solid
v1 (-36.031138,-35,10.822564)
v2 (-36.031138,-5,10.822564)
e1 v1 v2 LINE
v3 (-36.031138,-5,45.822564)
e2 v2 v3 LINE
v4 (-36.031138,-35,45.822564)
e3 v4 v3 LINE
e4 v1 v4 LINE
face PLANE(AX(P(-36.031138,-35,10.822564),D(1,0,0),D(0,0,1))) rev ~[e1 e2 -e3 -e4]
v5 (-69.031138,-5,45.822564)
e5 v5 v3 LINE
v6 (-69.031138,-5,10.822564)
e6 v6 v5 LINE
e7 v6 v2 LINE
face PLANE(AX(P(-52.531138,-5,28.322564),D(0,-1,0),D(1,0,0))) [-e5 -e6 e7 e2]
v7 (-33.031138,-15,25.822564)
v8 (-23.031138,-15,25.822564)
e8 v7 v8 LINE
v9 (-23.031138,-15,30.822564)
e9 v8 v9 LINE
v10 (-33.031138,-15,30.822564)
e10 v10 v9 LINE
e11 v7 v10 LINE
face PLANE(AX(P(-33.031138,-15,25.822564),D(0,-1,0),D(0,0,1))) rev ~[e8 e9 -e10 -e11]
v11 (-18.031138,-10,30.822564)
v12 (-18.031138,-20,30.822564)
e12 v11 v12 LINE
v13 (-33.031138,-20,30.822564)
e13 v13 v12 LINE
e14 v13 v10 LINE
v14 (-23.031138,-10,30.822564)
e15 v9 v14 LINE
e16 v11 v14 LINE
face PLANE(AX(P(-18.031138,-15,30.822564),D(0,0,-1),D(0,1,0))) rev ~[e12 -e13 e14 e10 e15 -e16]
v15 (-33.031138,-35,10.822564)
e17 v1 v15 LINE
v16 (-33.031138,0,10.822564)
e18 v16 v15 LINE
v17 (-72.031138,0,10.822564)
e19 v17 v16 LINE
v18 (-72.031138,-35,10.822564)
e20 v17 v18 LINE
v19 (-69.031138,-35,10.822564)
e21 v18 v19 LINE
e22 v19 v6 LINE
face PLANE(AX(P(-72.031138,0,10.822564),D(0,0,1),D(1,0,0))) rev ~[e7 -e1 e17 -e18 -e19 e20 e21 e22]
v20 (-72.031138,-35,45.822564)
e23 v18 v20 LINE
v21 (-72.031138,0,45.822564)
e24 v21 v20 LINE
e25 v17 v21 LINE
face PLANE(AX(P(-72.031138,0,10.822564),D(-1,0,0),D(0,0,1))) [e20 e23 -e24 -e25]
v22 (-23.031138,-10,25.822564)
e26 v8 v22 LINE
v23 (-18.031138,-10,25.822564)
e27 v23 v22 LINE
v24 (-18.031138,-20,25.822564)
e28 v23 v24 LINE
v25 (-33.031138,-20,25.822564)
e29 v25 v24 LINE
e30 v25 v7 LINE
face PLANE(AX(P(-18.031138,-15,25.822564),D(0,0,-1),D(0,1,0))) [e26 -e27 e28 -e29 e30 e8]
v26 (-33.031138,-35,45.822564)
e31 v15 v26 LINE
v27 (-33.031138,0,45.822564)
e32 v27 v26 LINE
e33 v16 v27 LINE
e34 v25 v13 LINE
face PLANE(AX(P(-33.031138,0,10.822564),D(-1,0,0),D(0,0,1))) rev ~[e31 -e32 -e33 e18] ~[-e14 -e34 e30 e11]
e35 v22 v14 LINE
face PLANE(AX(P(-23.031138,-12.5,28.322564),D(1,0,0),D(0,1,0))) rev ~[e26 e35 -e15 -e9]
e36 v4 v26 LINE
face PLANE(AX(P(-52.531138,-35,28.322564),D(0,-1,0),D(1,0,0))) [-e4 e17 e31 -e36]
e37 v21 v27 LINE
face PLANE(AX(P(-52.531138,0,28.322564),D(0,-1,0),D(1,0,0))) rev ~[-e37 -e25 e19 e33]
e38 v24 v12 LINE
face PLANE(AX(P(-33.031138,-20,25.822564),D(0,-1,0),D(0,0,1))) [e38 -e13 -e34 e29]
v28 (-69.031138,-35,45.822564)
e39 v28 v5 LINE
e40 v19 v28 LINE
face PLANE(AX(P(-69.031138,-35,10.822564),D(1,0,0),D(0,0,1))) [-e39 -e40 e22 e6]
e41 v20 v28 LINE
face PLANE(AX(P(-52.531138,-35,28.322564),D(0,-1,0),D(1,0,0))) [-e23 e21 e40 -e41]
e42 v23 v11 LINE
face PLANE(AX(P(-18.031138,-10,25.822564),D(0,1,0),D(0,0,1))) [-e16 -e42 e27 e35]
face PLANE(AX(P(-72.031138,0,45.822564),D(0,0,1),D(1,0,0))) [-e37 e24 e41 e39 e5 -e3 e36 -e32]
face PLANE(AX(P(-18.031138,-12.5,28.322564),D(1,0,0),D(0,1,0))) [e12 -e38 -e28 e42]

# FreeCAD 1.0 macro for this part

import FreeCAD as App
import Part
import Sketcher

V = App.Vector
Q = App.Units.Quantity

doc = App.newDocument("Part")
params = doc.addObject("Spreadsheet::Sheet", "Params")
for row, (alias, value) in enumerate([
    ("sketch1_width", "39 mm"),
    ("sketch1_height", "35 mm"),
    ("pad1_length", "35 mm"),
    ("sketch2_width", "33 mm"),
    ("sketch2_height", "35 mm"),
    ("pocket1_length", "30 mm"),
    ("sketch3_width", "5 mm"),
    ("pad2_length", "15 mm"),
    ("sketch4_width", "5 mm"),
    ("pad3_length", "5 mm"),
], start=1):
    params.set(f"A{row}", alias)
    params.set(f"B{row}", "=" + value)
    params.setAlias(f"B{row}", alias)

body = doc.addObject("PartDesign::Body", "Body")

# Sketch on XZ plane
sketch1 = doc.addObject("Sketcher::SketchObject", "Sketch")
body.addObject(sketch1)
sketch1.AttachmentSupport = (doc.XZ_Plane, [""])
sketch1.MapMode = "FlatFace"
sketch1.addGeometry(Part.LineSegment(V(-72.031138, 45.822564, 0), V(-72.031138, 10.822564, 0)), False)
sketch1.addGeometry(Part.LineSegment(V(-72.031138, 10.822564, 0), V(-33.031138, 10.822564, 0)), False)
sketch1.addGeometry(Part.LineSegment(V(-33.031138, 10.822564, 0), V(-33.031138, 45.822564, 0)), False)
sketch1.addGeometry(Part.LineSegment(V(-33.031138, 45.822564, 0), V(-72.031138, 45.822564, 0)), False)
sketch1.addConstraint(Sketcher.Constraint("Coincident", 0, 2, 1, 1))
sketch1.addConstraint(Sketcher.Constraint("Coincident", 1, 2, 2, 1))
sketch1.addConstraint(Sketcher.Constraint("Coincident", 2, 2, 3, 1))
sketch1.addConstraint(Sketcher.Constraint("Coincident", 3, 2, 0, 1))
sketch1.addConstraint(Sketcher.Constraint("Vertical", 0))
sketch1.addConstraint(Sketcher.Constraint("Horizontal", 1))
sketch1.addConstraint(Sketcher.Constraint("Vertical", 2))
sketch1.addConstraint(Sketcher.Constraint("Horizontal", 3))
sketch1.addConstraint(Sketcher.Constraint("DistanceX", 1, 1, 1, 2, Q("39 mm")))
sketch1.addConstraint(Sketcher.Constraint("DistanceY", 0, 2, 0, 1, Q("35 mm")))
sketch1.addConstraint(Sketcher.Constraint("DistanceX", 0, 2, -1, 1, Q("72.031138 mm")))
sketch1.addConstraint(Sketcher.Constraint("DistanceY", -1, 1, 0, 2, Q("10.822564 mm")))
sketch1.setExpression("Constraints[8]", "Params.sketch1_width")
sketch1.setExpression("Constraints[9]", "Params.sketch1_height")
pad1 = doc.addObject("PartDesign::Pad", "Pad")
body.addObject(pad1)
pad1.Profile = sketch1
pad1.setExpression("Length", "Params.pad1_length")

# Sketch on XZ plane
sketch2 = doc.addObject("Sketcher::SketchObject", "Sketch001")
body.addObject(sketch2)
sketch2.AttachmentSupport = (doc.XZ_Plane, [""])
sketch2.MapMode = "FlatFace"
sketch2.AttachmentOffset = App.Placement(V(0, 0, 35), App.Rotation())
sketch2.addGeometry(Part.LineSegment(V(-69.031138, 45.822564, 0), V(-69.031138, 10.822564, 0)), False)
sketch2.addGeometry(Part.LineSegment(V(-69.031138, 10.822564, 0), V(-36.031138, 10.822564, 0)), False)
sketch2.addGeometry(Part.LineSegment(V(-36.031138, 10.822564, 0), V(-36.031138, 45.822564, 0)), False)
sketch2.addGeometry(Part.LineSegment(V(-36.031138, 45.822564, 0), V(-69.031138, 45.822564, 0)), False)
sketch2.addConstraint(Sketcher.Constraint("Coincident", 0, 2, 1, 1))
sketch2.addConstraint(Sketcher.Constraint("Coincident", 1, 2, 2, 1))
sketch2.addConstraint(Sketcher.Constraint("Coincident", 2, 2, 3, 1))
sketch2.addConstraint(Sketcher.Constraint("Coincident", 3, 2, 0, 1))
sketch2.addConstraint(Sketcher.Constraint("Vertical", 0))
sketch2.addConstraint(Sketcher.Constraint("Horizontal", 1))
sketch2.addConstraint(Sketcher.Constraint("Vertical", 2))
sketch2.addConstraint(Sketcher.Constraint("Horizontal", 3))
sketch2.addConstraint(Sketcher.Constraint("DistanceX", 1, 1, 1, 2, Q("33 mm")))
sketch2.addConstraint(Sketcher.Constraint("DistanceY", 0, 2, 0, 1, Q("35 mm")))
sketch2.addConstraint(Sketcher.Constraint("DistanceX", 0, 2, -1, 1, Q("69.031138 mm")))
sketch2.addConstraint(Sketcher.Constraint("DistanceY", -1, 1, 0, 2, Q("10.822564 mm")))
sketch2.setExpression("Constraints[8]", "Params.sketch2_width")
sketch2.setExpression("Constraints[9]", "Params.sketch2_height")
pocket1 = doc.addObject("PartDesign::Pocket", "Pocket")
body.addObject(pocket1)
pocket1.Profile = sketch2
pocket1.setExpression("Length", "Params.pocket1_length")

# Sketch on YZ plane
sketch3 = doc.addObject("Sketcher::SketchObject", "Sketch002")
body.addObject(sketch3)
sketch3.AttachmentSupport = (doc.YZ_Plane, [""])
sketch3.MapMode = "FlatFace"
sketch3.AttachmentOffset = App.Placement(V(0, 0, -33.031138), App.Rotation())
sketch3.addGeometry(Part.LineSegment(V(-20, 30.822564, 0), V(-20, 25.822564, 0)), False)
sketch3.addGeometry(Part.LineSegment(V(-20, 25.822564, 0), V(-15, 25.822564, 0)), False)
sketch3.addGeometry(Part.LineSegment(V(-15, 25.822564, 0), V(-15, 30.822564, 0)), False)
sketch3.addGeometry(Part.LineSegment(V(-15, 30.822564, 0), V(-20, 30.822564, 0)), False)
sketch3.addConstraint(Sketcher.Constraint("Coincident", 0, 2, 1, 1))
sketch3.addConstraint(Sketcher.Constraint("Coincident", 1, 2, 2, 1))
sketch3.addConstraint(Sketcher.Constraint("Coincident", 2, 2, 3, 1))
sketch3.addConstraint(Sketcher.Constraint("Coincident", 3, 2, 0, 1))
sketch3.addConstraint(Sketcher.Constraint("Vertical", 0))
sketch3.addConstraint(Sketcher.Constraint("Horizontal", 1))
sketch3.addConstraint(Sketcher.Constraint("Vertical", 2))
sketch3.addConstraint(Sketcher.Constraint("Horizontal", 3))
sketch3.addConstraint(Sketcher.Constraint("Equal", 3, 0))
sketch3.addConstraint(Sketcher.Constraint("DistanceX", 1, 1, 1, 2, Q("5 mm")))
sketch3.addConstraint(Sketcher.Constraint("DistanceX", 0, 2, -1, 1, Q("20 mm")))
sketch3.addConstraint(Sketcher.Constraint("DistanceY", -1, 1, 0, 2, Q("25.822564 mm")))
sketch3.setExpression("Constraints[9]", "Params.sketch3_width")
pad2 = doc.addObject("PartDesign::Pad", "Pad001")
body.addObject(pad2)
pad2.Profile = sketch3
pad2.setExpression("Length", "Params.pad2_length")

# Sketch on YZ plane
sketch4 = doc.addObject("Sketcher::SketchObject", "Sketch003")
body.addObject(sketch4)
sketch4.AttachmentSupport = (doc.YZ_Plane, [""])
sketch4.MapMode = "FlatFace"
sketch4.AttachmentOffset = App.Placement(V(0, 0, -18.031138), App.Rotation())
sketch4.addGeometry(Part.LineSegment(V(-15, 30.822564, 0), V(-15, 25.822564, 0)), False)
sketch4.addGeometry(Part.LineSegment(V(-15, 25.822564, 0), V(-10, 25.822564, 0)), False)
sketch4.addGeometry(Part.LineSegment(V(-10, 25.822564, 0), V(-10, 30.822564, 0)), False)
sketch4.addGeometry(Part.LineSegment(V(-10, 30.822564, 0), V(-15, 30.822564, 0)), False)
sketch4.addConstraint(Sketcher.Constraint("Coincident", 0, 2, 1, 1))
sketch4.addConstraint(Sketcher.Constraint("Coincident", 1, 2, 2, 1))
sketch4.addConstraint(Sketcher.Constraint("Coincident", 2, 2, 3, 1))
sketch4.addConstraint(Sketcher.Constraint("Coincident", 3, 2, 0, 1))
sketch4.addConstraint(Sketcher.Constraint("Vertical", 0))
sketch4.addConstraint(Sketcher.Constraint("Horizontal", 1))
sketch4.addConstraint(Sketcher.Constraint("Vertical", 2))
sketch4.addConstraint(Sketcher.Constraint("Horizontal", 3))
sketch4.addConstraint(Sketcher.Constraint("Equal", 3, 0))
sketch4.addConstraint(Sketcher.Constraint("DistanceX", 1, 1, 1, 2, Q("5 mm")))
sketch4.addConstraint(Sketcher.Constraint("DistanceX", 0, 2, -1, 1, Q("15 mm")))
sketch4.addConstraint(Sketcher.Constraint("DistanceY", -1, 1, 0, 2, Q("25.822564 mm")))
sketch4.setExpression("Constraints[9]", "Params.sketch4_width")
pad3 = doc.addObject("PartDesign::Pad", "Pad002")
body.addObject(pad3)
pad3.Profile = sketch4
pad3.setExpression("Length", "Params.pad3_length")
pad3.Reversed = True

doc.recompute()
